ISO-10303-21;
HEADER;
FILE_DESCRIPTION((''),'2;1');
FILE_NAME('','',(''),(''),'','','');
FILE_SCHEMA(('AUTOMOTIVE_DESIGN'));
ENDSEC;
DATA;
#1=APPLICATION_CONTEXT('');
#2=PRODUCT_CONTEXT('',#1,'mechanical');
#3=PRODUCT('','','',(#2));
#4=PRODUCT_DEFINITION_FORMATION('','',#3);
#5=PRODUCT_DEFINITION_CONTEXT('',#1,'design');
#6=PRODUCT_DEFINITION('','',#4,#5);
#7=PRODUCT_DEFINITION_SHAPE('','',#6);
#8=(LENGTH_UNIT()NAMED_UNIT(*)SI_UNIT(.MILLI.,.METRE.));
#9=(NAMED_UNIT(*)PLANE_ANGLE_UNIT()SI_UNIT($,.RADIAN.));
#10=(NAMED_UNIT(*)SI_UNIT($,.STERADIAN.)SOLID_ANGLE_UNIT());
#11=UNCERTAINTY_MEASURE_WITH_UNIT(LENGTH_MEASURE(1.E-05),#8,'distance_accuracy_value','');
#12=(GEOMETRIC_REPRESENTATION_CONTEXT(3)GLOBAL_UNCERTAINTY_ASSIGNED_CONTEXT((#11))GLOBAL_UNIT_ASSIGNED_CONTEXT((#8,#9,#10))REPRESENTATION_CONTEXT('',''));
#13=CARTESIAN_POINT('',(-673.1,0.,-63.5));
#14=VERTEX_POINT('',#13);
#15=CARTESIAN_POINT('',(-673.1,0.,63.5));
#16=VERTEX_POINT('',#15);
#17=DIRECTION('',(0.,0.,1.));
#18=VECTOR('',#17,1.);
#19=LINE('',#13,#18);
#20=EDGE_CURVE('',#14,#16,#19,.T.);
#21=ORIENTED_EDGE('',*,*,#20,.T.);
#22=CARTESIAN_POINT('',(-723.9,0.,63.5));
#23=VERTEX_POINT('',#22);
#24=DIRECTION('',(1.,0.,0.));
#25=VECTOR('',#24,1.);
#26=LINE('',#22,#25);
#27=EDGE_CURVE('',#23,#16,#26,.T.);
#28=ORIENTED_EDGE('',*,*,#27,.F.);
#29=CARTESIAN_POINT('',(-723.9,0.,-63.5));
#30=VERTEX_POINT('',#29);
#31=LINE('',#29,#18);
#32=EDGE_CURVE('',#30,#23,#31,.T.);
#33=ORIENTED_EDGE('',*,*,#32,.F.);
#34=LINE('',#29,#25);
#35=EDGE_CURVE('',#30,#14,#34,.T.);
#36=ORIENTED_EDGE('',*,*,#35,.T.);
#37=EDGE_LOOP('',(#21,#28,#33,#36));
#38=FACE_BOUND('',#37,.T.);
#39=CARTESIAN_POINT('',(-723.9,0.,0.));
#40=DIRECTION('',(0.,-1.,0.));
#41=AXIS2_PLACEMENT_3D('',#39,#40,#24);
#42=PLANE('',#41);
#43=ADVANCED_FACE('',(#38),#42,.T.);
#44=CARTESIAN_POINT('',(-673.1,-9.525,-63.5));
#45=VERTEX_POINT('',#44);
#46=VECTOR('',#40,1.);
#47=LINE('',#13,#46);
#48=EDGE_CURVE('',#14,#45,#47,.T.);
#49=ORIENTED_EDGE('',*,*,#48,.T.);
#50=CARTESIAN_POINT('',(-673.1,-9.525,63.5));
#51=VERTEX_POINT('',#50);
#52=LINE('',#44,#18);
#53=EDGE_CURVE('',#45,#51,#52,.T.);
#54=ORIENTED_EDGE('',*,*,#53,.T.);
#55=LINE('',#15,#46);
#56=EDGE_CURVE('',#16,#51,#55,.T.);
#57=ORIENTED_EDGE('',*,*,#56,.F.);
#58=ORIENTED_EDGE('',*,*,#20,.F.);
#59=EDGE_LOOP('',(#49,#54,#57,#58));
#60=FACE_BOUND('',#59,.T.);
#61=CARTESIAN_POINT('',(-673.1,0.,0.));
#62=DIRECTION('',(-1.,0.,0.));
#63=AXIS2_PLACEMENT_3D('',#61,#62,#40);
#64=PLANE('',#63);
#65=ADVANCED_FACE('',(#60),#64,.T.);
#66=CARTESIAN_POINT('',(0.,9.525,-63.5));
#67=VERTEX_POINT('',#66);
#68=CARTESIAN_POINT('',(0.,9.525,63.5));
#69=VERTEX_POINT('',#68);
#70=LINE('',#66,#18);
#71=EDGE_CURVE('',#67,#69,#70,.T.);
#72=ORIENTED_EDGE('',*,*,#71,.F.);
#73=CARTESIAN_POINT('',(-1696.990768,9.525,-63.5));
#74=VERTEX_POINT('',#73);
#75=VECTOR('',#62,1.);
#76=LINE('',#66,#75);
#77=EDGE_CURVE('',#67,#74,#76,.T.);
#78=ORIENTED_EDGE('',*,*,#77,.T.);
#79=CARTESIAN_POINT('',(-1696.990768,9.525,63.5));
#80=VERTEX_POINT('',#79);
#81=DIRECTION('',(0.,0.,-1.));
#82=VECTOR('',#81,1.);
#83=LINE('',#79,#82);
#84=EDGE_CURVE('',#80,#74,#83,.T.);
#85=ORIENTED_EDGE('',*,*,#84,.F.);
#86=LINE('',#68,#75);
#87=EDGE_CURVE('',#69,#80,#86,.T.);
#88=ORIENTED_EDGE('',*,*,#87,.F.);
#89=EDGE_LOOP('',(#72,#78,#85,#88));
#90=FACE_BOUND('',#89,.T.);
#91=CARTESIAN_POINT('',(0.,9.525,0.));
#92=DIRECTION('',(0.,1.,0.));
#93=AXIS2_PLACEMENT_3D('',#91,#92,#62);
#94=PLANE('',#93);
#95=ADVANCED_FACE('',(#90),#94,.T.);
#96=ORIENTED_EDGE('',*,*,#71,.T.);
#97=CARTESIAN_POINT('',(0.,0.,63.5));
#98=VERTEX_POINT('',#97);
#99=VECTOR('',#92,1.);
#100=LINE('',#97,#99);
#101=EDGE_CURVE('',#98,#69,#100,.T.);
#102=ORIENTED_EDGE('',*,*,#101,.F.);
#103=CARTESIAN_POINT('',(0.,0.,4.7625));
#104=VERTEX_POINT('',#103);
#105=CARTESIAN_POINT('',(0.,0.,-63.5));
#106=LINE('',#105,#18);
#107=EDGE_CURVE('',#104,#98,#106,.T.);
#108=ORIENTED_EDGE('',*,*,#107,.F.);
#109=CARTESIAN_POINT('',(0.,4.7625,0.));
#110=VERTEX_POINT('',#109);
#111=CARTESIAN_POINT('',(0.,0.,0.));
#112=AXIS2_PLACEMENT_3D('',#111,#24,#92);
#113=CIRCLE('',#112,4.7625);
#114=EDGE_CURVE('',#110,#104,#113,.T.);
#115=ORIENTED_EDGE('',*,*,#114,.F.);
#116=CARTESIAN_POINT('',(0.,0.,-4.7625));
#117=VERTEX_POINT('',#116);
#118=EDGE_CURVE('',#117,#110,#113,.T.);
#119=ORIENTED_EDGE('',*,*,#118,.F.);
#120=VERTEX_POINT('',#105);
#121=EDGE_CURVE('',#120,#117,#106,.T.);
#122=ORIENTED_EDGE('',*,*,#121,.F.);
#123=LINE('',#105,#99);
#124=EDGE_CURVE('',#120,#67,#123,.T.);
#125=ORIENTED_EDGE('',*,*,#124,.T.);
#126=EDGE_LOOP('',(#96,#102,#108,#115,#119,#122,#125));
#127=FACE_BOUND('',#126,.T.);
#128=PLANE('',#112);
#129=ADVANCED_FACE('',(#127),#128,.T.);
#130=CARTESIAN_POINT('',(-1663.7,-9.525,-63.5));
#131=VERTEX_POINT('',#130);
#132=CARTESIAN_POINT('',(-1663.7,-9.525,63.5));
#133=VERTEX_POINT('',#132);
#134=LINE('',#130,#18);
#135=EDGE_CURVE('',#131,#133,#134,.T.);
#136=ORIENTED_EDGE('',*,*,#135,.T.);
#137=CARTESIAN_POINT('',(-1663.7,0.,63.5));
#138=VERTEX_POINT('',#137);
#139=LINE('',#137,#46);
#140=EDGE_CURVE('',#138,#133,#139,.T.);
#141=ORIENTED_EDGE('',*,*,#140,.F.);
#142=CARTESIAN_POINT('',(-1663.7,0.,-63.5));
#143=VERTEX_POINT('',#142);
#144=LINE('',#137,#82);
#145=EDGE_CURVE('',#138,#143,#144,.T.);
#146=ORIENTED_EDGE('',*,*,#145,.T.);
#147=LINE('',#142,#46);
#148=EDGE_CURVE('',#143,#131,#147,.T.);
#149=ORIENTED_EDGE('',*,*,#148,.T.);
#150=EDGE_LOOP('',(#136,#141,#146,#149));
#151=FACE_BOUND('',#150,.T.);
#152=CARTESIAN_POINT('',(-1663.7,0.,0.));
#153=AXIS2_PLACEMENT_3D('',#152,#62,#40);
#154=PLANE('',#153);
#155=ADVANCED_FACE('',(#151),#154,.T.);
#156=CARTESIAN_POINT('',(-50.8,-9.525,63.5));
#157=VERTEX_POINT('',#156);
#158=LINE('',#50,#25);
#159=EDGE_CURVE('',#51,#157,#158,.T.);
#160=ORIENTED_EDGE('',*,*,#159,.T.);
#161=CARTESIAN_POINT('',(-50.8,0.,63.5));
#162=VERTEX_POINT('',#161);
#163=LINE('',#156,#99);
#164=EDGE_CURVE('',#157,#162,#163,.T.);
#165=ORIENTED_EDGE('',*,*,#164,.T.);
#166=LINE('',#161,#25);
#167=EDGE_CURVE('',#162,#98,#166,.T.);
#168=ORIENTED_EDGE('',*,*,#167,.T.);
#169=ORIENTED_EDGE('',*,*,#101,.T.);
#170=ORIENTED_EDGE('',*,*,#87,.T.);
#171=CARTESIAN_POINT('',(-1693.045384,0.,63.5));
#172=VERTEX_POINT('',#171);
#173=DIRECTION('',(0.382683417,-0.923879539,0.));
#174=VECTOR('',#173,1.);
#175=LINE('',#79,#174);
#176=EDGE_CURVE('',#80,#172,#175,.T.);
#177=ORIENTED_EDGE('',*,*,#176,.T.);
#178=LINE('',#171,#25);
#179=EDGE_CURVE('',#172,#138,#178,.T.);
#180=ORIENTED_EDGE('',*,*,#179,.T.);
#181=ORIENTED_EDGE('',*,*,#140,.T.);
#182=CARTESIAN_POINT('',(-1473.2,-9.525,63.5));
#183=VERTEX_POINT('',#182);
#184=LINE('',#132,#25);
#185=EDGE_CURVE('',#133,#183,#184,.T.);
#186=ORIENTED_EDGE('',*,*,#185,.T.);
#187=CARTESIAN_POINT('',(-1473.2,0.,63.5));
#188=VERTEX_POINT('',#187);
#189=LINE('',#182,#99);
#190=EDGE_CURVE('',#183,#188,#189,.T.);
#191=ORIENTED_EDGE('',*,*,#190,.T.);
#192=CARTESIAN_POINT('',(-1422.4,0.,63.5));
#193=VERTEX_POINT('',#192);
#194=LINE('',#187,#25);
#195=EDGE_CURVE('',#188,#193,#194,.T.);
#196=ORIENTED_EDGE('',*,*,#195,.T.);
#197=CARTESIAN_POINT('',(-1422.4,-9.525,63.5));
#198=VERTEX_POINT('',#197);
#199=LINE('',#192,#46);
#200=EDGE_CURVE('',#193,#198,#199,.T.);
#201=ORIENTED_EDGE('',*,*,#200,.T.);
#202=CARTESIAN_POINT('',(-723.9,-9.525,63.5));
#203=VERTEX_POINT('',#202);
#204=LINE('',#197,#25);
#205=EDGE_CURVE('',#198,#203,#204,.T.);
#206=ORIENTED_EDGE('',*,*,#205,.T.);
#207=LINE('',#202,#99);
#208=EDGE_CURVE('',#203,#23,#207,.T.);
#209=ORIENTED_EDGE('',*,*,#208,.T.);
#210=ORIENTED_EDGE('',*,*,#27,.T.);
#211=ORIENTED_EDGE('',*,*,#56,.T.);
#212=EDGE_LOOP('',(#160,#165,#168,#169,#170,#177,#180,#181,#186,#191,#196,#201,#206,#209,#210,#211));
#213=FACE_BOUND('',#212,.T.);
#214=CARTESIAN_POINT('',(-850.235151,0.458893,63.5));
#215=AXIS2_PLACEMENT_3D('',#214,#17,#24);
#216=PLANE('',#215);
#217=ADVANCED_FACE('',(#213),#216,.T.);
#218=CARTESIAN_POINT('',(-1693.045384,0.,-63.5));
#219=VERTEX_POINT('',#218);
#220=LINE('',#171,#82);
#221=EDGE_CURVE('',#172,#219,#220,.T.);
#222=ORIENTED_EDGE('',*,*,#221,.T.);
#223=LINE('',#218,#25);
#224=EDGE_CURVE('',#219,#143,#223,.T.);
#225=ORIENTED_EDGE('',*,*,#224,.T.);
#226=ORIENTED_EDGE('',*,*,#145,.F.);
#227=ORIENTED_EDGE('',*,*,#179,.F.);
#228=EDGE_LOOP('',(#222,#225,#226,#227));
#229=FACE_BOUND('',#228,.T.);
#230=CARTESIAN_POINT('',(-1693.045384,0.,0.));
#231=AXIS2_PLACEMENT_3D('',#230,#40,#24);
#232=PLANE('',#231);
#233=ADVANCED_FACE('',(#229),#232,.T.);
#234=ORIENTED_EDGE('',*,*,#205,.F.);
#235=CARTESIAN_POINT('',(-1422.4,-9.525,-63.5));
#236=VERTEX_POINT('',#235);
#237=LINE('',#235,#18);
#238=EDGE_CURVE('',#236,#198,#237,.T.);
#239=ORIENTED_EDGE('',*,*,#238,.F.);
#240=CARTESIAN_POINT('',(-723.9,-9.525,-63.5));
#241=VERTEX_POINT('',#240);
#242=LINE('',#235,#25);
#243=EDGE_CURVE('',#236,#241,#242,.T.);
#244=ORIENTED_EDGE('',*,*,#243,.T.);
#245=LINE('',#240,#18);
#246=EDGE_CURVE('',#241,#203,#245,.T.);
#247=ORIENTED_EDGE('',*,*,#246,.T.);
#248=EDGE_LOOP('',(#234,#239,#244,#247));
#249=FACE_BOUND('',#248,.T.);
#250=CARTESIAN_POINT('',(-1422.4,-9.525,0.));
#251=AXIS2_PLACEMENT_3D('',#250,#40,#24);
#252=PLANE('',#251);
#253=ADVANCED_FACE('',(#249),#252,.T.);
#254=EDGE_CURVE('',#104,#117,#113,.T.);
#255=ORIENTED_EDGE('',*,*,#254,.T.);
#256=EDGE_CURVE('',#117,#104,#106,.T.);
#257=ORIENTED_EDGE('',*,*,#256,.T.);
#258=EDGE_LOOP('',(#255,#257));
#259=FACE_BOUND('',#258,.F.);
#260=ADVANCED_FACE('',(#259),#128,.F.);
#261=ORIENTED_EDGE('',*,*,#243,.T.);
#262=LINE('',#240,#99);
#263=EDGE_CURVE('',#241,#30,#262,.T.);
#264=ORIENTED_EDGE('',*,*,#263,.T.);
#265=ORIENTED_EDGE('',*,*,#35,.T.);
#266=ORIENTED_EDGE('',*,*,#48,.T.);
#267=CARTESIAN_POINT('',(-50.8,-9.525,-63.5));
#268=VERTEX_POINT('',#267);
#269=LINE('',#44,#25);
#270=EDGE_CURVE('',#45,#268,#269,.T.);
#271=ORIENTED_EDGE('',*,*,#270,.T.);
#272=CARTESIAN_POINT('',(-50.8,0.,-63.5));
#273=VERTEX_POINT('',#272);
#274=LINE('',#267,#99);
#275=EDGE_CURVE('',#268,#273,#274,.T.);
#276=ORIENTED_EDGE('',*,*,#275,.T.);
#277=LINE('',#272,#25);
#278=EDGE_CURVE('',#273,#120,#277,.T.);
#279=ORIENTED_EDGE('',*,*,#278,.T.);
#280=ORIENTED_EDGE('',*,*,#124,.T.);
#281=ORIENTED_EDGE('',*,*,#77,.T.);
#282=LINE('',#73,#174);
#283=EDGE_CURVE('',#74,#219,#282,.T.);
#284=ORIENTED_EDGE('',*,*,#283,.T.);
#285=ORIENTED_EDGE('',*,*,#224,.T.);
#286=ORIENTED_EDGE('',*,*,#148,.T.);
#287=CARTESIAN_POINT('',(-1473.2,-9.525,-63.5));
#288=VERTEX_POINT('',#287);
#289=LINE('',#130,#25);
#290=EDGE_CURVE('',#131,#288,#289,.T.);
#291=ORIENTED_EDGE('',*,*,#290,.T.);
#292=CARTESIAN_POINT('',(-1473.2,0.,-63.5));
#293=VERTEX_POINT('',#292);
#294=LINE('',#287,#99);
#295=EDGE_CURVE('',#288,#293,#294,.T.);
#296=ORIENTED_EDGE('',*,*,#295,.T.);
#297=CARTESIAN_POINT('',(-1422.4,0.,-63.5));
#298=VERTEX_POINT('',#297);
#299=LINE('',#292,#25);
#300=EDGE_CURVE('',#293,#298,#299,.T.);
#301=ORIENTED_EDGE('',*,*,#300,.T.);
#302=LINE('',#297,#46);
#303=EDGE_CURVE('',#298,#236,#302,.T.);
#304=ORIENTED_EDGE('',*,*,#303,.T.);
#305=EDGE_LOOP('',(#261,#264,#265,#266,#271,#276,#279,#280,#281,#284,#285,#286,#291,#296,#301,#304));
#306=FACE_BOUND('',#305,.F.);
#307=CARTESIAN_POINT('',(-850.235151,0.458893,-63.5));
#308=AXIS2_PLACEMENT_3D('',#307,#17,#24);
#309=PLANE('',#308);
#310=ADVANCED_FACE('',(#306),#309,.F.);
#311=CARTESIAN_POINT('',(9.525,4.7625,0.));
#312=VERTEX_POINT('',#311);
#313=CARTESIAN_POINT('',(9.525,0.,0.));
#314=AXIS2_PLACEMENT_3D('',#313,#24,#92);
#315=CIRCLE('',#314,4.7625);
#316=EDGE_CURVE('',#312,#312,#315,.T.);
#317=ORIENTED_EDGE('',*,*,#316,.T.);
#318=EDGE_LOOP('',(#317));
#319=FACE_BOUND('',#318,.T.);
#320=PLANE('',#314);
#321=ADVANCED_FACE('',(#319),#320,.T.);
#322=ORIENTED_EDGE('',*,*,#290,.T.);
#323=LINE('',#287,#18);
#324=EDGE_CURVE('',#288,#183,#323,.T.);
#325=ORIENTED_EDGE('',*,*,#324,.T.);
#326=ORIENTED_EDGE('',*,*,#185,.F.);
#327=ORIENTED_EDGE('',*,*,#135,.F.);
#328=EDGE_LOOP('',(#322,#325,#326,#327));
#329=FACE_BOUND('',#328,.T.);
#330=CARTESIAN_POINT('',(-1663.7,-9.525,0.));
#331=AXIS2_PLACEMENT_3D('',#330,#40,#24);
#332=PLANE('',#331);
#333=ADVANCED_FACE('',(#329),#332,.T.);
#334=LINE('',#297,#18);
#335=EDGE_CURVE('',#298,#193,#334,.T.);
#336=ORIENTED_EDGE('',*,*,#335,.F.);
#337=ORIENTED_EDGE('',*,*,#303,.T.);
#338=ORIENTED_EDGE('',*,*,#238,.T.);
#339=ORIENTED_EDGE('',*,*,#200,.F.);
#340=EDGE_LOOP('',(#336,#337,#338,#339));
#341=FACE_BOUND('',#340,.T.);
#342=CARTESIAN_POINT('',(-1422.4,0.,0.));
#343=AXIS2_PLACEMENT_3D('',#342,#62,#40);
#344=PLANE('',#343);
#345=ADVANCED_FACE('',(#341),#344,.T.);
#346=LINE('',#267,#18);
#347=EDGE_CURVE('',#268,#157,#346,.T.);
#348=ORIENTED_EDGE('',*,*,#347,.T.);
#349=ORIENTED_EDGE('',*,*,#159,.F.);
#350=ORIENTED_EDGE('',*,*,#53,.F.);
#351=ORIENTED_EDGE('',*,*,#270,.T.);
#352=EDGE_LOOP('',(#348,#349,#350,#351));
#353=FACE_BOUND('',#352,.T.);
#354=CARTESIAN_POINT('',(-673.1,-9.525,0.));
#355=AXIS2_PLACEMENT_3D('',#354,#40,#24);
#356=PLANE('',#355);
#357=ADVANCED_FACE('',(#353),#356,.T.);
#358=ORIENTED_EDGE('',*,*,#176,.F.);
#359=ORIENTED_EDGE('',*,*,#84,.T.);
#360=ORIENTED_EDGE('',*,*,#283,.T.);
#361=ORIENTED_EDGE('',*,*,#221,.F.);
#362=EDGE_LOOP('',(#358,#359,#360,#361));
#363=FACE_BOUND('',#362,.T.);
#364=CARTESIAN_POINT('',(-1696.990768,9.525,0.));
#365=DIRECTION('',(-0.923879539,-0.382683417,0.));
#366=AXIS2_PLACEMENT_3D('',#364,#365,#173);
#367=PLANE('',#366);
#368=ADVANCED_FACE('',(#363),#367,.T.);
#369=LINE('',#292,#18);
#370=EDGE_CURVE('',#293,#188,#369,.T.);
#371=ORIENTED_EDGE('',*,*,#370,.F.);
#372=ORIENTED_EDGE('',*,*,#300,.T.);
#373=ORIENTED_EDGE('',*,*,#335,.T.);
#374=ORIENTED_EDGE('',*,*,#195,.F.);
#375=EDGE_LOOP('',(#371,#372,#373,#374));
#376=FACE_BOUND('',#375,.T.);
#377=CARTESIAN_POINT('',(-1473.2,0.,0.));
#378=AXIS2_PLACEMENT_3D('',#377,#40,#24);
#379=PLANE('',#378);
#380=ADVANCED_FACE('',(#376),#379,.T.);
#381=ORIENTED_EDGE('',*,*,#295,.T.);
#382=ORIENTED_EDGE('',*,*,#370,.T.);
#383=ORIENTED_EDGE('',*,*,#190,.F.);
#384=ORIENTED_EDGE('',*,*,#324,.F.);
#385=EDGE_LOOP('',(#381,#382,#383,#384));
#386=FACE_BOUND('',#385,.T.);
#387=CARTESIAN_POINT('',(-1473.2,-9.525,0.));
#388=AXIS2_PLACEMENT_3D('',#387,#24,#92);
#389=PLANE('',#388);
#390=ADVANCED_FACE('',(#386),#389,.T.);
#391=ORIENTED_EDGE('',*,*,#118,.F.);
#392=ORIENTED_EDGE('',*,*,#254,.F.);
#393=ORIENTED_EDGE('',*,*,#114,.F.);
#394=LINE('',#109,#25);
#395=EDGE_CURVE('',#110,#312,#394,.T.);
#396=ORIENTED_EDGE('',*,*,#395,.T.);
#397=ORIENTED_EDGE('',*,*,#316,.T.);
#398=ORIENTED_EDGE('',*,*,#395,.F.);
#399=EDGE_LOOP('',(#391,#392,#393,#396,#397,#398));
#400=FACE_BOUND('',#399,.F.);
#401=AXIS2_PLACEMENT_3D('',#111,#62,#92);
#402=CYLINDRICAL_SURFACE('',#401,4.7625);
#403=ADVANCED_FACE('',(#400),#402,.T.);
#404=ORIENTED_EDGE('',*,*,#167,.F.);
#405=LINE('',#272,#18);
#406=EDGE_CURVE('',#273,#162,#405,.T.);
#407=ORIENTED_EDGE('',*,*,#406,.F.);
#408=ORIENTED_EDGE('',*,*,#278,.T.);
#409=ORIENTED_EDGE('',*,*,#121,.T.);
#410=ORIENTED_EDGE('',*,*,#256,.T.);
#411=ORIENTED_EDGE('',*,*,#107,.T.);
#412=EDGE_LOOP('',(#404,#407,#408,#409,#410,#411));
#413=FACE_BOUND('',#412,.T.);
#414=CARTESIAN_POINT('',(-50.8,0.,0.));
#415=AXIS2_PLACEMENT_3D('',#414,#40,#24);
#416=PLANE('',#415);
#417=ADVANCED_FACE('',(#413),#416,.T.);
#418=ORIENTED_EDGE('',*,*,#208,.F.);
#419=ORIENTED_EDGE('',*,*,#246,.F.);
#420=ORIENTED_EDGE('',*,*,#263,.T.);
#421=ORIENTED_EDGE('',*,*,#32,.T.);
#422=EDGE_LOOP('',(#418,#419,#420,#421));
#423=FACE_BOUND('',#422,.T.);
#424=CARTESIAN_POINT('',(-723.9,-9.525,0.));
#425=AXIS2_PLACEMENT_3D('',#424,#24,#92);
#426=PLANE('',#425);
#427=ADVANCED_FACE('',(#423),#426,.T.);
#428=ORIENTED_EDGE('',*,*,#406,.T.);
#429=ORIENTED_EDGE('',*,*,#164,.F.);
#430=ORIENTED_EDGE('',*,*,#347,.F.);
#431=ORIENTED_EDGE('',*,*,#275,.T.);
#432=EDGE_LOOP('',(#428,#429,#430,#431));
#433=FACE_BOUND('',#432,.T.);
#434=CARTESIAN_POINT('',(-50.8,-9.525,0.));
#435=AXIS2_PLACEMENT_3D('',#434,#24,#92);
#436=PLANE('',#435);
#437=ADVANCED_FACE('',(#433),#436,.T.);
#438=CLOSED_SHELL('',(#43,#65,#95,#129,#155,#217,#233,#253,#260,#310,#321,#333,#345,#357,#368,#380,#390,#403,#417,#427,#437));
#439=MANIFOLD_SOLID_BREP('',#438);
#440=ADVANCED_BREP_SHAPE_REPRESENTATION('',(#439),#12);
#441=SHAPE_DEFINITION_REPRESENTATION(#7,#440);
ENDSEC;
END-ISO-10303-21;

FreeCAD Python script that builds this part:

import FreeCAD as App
import Part
import Sketcher
from FreeCAD import Vector
Q = App.Units.Quantity

doc = App.newDocument("Part")
body = doc.addObject("PartDesign::Body", "Body")

# Sketch on XY plane
sketch1 = body.newObject("Sketcher::SketchObject", "Sketch")
sketch1.AttachmentSupport = (doc.getObject("XY_Plane"), [""])
sketch1.MapMode = "FlatFace"
sketch1.addGeometry(Part.LineSegment(Vector(-1664, 0, 0), Vector(-1664, -10, 0)), False)
sketch1.addGeometry(Part.LineSegment(Vector(-1664, -10, 0), Vector(-1473, -10, 0)), False)
sketch1.addGeometry(Part.LineSegment(Vector(-1473, -10, 0), Vector(-1473, 0, 0)), False)
sketch1.addGeometry(Part.LineSegment(Vector(-1473, 0, 0), Vector(-1422, 0, 0)), False)
sketch1.addGeometry(Part.LineSegment(Vector(-1422, 0, 0), Vector(-1422, -10, 0)), False)
sketch1.addGeometry(Part.LineSegment(Vector(-1422, -10, 0), Vector(-724, -10, 0)), False)
sketch1.addGeometry(Part.LineSegment(Vector(-724, -10, 0), Vector(-724, 0, 0)), False)
sketch1.addGeometry(Part.LineSegment(Vector(-724, 0, 0), Vector(-673, 0, 0)), False)
sketch1.addGeometry(Part.LineSegment(Vector(-673, 0, 0), Vector(-673, -10, 0)), False)
sketch1.addGeometry(Part.LineSegment(Vector(-673, -10, 0), Vector(-51, -10, 0)), False)
sketch1.addGeometry(Part.LineSegment(Vector(-51, -10, 0), Vector(-51, 0, 0)), False)
sketch1.addGeometry(Part.LineSegment(Vector(-51, 0, 0), Vector(0, 0, 0)), False)
sketch1.addGeometry(Part.LineSegment(Vector(0, 0, 0), Vector(0, 10, 0)), False)
sketch1.addGeometry(Part.LineSegment(Vector(0, 10, 0), Vector(-1697, 10, 0)), False)
sketch1.addGeometry(Part.LineSegment(Vector(-1697, 10, 0), Vector(-1693, 0, 0)), False)
sketch1.addGeometry(Part.LineSegment(Vector(-1693, 0, 0), Vector(-1664, 0, 0)), False)
sketch1.addConstraint(Sketcher.Constraint("Coincident", 0, 2, 1, 1))
sketch1.addConstraint(Sketcher.Constraint("Coincident", 1, 2, 2, 1))
sketch1.addConstraint(Sketcher.Constraint("Coincident", 2, 2, 3, 1))
sketch1.addConstraint(Sketcher.Constraint("Coincident", 3, 2, 4, 1))
sketch1.addConstraint(Sketcher.Constraint("Coincident", 4, 2, 5, 1))
sketch1.addConstraint(Sketcher.Constraint("Coincident", 5, 2, 6, 1))
sketch1.addConstraint(Sketcher.Constraint("Coincident", 6, 2, 7, 1))
sketch1.addConstraint(Sketcher.Constraint("Coincident", 7, 2, 8, 1))
sketch1.addConstraint(Sketcher.Constraint("Coincident", 8, 2, 9, 1))
sketch1.addConstraint(Sketcher.Constraint("Coincident", 9, 2, 10, 1))
sketch1.addConstraint(Sketcher.Constraint("Coincident", 10, 2, 11, 1))
sketch1.addConstraint(Sketcher.Constraint("Coincident", 11, 2, 12, 1))
sketch1.addConstraint(Sketcher.Constraint("Coincident", 12, 2, 13, 1))
sketch1.addConstraint(Sketcher.Constraint("Coincident", 13, 2, 14, 1))
sketch1.addConstraint(Sketcher.Constraint("Coincident", 14, 2, 15, 1))
sketch1.addConstraint(Sketcher.Constraint("Coincident", 15, 2, 0, 1))
sketch1.addConstraint(Sketcher.Constraint("Vertical", 0))
sketch1.addConstraint(Sketcher.Constraint("Horizontal", 1))
sketch1.addConstraint(Sketcher.Constraint("Vertical", 2))
sketch1.addConstraint(Sketcher.Constraint("Horizontal", 3))
sketch1.addConstraint(Sketcher.Constraint("Vertical", 4))
sketch1.addConstraint(Sketcher.Constraint("Horizontal", 5))
sketch1.addConstraint(Sketcher.Constraint("Vertical", 6))
sketch1.addConstraint(Sketcher.Constraint("Horizontal", 7))
sketch1.addConstraint(Sketcher.Constraint("Vertical", 8))
sketch1.addConstraint(Sketcher.Constraint("Horizontal", 9))
sketch1.addConstraint(Sketcher.Constraint("Vertical", 10))
sketch1.addConstraint(Sketcher.Constraint("Horizontal", 11))
sketch1.addConstraint(Sketcher.Constraint("Vertical", 12))
sketch1.addConstraint(Sketcher.Constraint("Horizontal", 13))
sketch1.addConstraint(Sketcher.Constraint("Horizontal", 15))
sketch1.addConstraint(Sketcher.Constraint("Coincident", 11, 2, -1, 1))
sketch1.addConstraint(Sketcher.Constraint("PointOnObject", 2, 2, -1))
sketch1.addConstraint(Sketcher.Constraint("PointOnObject", 6, 2, -1))
sketch1.addConstraint(Sketcher.Constraint("PointOnObject", 14, 2, -1))
sketch1.addConstraint(Sketcher.Constraint("Horizontal", 1, 2, 4, 2))
sketch1.addConstraint(Sketcher.Constraint("Horizontal", 5, 2, 8, 2))
sketch1.addConstraint(Sketcher.Constraint("Equal", 3, 7))
sketch1.addConstraint(Sketcher.Constraint("Equal", 7, 11))
sketch1.addConstraint(Sketcher.Constraint("Equal", 10, 12))
sketch1.addConstraint(Sketcher.Constraint("DistanceX", 3, 1, 3, 2, Q("2 in")))
sketch1.addConstraint(Sketcher.Constraint("DistanceX", 1, 1, 1, 2, Q("7.5 in")))
sketch1.addConstraint(Sketcher.Constraint("DistanceX", 5, 1, 5, 2, Q("27.5 in")))
sketch1.addConstraint(Sketcher.Constraint("DistanceX", 9, 1, 9, 2, Q("24.5 in")))
sketch1.addConstraint(Sketcher.Constraint("Angle", 14, Q("-67.500001 deg")))
sketch1.addConstraint(Sketcher.Constraint("DistanceY", 0, 2, 0, 1, Q("0.375 in")))
sketch1.addConstraint(Sketcher.Constraint("DistanceX", 13, 2, 13, 1, 1696.990768))
pad1 = body.newObject("PartDesign::Pad", "Pad")
pad1.Profile = sketch1
pad1.Length = Q("5 in")
pad1.Midplane = True

# Sketch on YZ plane
sketch2 = body.newObject("Sketcher::SketchObject", "Sketch001")
sketch2.AttachmentSupport = (doc.getObject("YZ_Plane"), [""])
sketch2.MapMode = "FlatFace"
sketch2.addGeometry(Part.Circle(Vector(0, 0, 0), Vector(0, 0, 1), 4.8), False)
sketch2.addConstraint(Sketcher.Constraint("Coincident", 0, 3, -1, 1))
sketch2.addConstraint(Sketcher.Constraint("Diameter", 0, Q("0.375 in")))
pad2 = body.newObject("PartDesign::Pad", "Pad001")
pad2.Profile = sketch2
pad2.Length = Q("0.375 in")

doc.recompute()
